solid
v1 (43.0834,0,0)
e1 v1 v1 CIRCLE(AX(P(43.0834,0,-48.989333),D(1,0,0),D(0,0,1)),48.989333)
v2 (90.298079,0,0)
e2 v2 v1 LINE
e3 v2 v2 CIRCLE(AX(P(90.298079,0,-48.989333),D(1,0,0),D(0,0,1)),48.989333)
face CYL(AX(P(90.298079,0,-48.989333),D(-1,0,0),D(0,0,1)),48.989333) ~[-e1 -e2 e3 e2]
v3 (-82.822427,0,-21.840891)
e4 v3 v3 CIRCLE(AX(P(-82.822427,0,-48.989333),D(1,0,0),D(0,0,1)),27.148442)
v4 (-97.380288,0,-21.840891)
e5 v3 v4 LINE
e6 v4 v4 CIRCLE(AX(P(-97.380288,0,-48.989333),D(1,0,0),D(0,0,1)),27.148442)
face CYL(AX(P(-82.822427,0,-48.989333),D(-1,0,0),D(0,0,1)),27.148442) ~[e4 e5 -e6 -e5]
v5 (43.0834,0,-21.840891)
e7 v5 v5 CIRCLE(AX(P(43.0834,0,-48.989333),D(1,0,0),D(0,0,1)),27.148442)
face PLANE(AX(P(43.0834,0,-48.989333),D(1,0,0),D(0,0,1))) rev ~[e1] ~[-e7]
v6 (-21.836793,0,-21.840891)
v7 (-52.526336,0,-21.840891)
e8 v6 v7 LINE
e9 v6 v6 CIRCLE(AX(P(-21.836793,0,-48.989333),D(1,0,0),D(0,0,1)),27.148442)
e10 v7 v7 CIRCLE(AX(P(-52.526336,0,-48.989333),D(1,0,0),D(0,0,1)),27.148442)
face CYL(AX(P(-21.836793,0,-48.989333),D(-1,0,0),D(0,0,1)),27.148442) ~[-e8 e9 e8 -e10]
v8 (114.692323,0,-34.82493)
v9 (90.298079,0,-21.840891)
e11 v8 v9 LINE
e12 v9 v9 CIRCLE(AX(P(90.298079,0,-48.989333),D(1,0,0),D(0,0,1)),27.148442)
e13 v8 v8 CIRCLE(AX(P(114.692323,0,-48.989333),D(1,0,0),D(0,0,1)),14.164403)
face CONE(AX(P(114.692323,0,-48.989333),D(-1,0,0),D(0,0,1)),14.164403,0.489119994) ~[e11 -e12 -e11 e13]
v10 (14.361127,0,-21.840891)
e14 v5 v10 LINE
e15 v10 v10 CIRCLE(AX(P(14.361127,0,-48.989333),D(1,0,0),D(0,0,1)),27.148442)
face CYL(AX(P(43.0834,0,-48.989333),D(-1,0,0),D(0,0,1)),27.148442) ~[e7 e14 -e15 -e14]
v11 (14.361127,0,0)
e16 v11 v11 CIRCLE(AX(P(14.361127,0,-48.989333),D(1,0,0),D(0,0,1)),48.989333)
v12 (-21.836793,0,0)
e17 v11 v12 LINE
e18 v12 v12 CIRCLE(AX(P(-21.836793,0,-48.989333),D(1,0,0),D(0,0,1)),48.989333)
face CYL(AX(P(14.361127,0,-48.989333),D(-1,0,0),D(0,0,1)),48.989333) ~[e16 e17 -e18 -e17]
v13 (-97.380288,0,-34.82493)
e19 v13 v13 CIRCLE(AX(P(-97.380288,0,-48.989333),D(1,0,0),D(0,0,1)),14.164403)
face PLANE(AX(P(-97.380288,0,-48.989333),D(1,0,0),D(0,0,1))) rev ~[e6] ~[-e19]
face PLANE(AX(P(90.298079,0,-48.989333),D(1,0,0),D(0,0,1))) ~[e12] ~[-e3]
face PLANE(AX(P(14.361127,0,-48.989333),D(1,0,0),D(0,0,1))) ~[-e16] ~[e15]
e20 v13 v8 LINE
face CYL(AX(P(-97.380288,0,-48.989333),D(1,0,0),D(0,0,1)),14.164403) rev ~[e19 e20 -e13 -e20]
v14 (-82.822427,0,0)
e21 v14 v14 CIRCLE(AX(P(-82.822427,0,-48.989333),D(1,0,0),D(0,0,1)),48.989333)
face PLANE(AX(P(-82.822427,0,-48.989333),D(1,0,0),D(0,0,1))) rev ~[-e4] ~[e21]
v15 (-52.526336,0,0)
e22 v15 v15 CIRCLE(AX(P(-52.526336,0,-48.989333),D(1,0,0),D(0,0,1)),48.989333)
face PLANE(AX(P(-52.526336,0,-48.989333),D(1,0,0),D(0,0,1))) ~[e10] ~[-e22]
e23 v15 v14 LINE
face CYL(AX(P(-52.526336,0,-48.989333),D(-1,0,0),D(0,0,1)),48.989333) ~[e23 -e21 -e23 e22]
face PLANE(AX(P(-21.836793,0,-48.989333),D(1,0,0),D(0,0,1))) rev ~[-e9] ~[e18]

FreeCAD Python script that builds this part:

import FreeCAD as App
import Part
import Sketcher

V = App.Vector
Q = App.Units.Quantity

doc = App.newDocument("Part")
body = doc.addObject("PartDesign::Body", "Body")

sketch1 = doc.addObject("Sketcher::SketchObject", "Sketch")
body.addObject(sketch1)
sketch1.AttachmentSupport = (doc.XZ_Plane, [""])
sketch1.MapMode = "FlatFace"
sketch1.addGeometry([
    Part.LineSegment(V(-97, -22, 0), V(-97, -35, 0)),
    Part.LineSegment(V(-97, -35, 0), V(115, -35, 0)),
    Part.LineSegment(V(115, -35, 0), V(90, -22, 0)),
    Part.LineSegment(V(90, -22, 0), V(90, 0, 0)),
    Part.LineSegment(V(90, 0, 0), V(43, 0, 0)),
    Part.LineSegment(V(43, 0, 0), V(43, -22, 0)),
    Part.LineSegment(V(43, -22, 0), V(14, -22, 0)),
    Part.LineSegment(V(14, -22, 0), V(14, 0, 0)),
    Part.LineSegment(V(14, 0, 0), V(-22, 0, 0)),
    Part.LineSegment(V(-22, 0, 0), V(-22, -22, 0)),
    Part.LineSegment(V(-22, -22, 0), V(-53, -22, 0)),
    Part.LineSegment(V(-53, -22, 0), V(-53, 0, 0)),
    Part.LineSegment(V(-53, 0, 0), V(-83, 0, 0)),
    Part.LineSegment(V(-83, 0, 0), V(-83, -22, 0)),
    Part.LineSegment(V(-83, -22, 0), V(-97, -22, 0)),
], False)
sketch1.addGeometry(Part.LineSegment(V(-97, -49, 0), V(115, -49, 0)), True)
sketch1.addConstraint([
    Sketcher.Constraint("Coincident", 0, 2, 1, 1),
    Sketcher.Constraint("Coincident", 1, 2, 2, 1),
    Sketcher.Constraint("Coincident", 2, 2, 3, 1),
    Sketcher.Constraint("Coincident", 3, 2, 4, 1),
    Sketcher.Constraint("Coincident", 4, 2, 5, 1),
    Sketcher.Constraint("Coincident", 5, 2, 6, 1),
    Sketcher.Constraint("Coincident", 6, 2, 7, 1),
    Sketcher.Constraint("Coincident", 7, 2, 8, 1),
    Sketcher.Constraint("Coincident", 8, 2, 9, 1),
    Sketcher.Constraint("Coincident", 9, 2, 10, 1),
    Sketcher.Constraint("Coincident", 10, 2, 11, 1),
    Sketcher.Constraint("Coincident", 11, 2, 12, 1),
    Sketcher.Constraint("Coincident", 12, 2, 13, 1),
    Sketcher.Constraint("Coincident", 13, 2, 14, 1),
    Sketcher.Constraint("Coincident", 14, 2, 0, 1),
    Sketcher.Constraint("Vertical", 0),
    Sketcher.Constraint("Horizontal", 1),
    Sketcher.Constraint("Vertical", 3),
    Sketcher.Constraint("Horizontal", 4),
    Sketcher.Constraint("Vertical", 5),
    Sketcher.Constraint("Horizontal", 6),
    Sketcher.Constraint("Vertical", 7),
    Sketcher.Constraint("Horizontal", 8),
    Sketcher.Constraint("Vertical", 9),
    Sketcher.Constraint("Horizontal", 10),
    Sketcher.Constraint("Vertical", 11),
    Sketcher.Constraint("Horizontal", 12),
    Sketcher.Constraint("Vertical", 13),
    Sketcher.Constraint("Horizontal", 14),
    Sketcher.Constraint("Horizontal", 15),
    Sketcher.Constraint("PointOnObject", 3, 2, -1),
    Sketcher.Constraint("PointOnObject", 7, 2, -1),
    Sketcher.Constraint("PointOnObject", 11, 2, -1),
    Sketcher.Constraint("Horizontal", 2, 2, 5, 2),
    Sketcher.Constraint("Horizontal", 6, 2, 9, 2),
    Sketcher.Constraint("Horizontal", 10, 2, 13, 2),
    Sketcher.Constraint("Vertical", 14, 2, 15, 1),
    Sketcher.Constraint("Vertical", 1, 2, 15, 2),
    Sketcher.Constraint("DistanceX", 1, 1, 1, 2, Q("212.072611 mm")),
    Sketcher.Constraint("DistanceX", 4, 2, 4, 1, Q("47.214679 mm")),
    Sketcher.Constraint("DistanceX", 8, 2, 8, 1, Q("36.19792 mm")),
    Sketcher.Constraint("DistanceX", 12, 2, 12, 1, Q("30.296091 mm")),
    Sketcher.Constraint("DistanceX", 14, 2, 14, 1, Q("14.557861 mm")),
    Sketcher.Constraint("DistanceY", 0, 2, 0, 1, Q("12.984039 mm")),
    Sketcher.Constraint("DistanceY", 3, 1, 3, 2, Q("21.840891 mm")),
    Sketcher.Constraint("DistanceX", -1, 1, 4, 2, Q("43.0834 mm")),
    Sketcher.Constraint("Distance", 2, Q("27.634479 mm")),
    Sketcher.Constraint("DistanceX", 6, 2, 6, 1, Q("28.722273 mm")),
    Sketcher.Constraint("DistanceY", 15, 1, -1, 1, Q("48.989333 mm")),
])
revolution = doc.addObject("PartDesign::Revolution", "Revolution")
body.addObject(revolution)
revolution.Profile = sketch1
revolution.ReferenceAxis = (sketch1, ["Axis0"])
revolution.Angle = 360

doc.recompute()
